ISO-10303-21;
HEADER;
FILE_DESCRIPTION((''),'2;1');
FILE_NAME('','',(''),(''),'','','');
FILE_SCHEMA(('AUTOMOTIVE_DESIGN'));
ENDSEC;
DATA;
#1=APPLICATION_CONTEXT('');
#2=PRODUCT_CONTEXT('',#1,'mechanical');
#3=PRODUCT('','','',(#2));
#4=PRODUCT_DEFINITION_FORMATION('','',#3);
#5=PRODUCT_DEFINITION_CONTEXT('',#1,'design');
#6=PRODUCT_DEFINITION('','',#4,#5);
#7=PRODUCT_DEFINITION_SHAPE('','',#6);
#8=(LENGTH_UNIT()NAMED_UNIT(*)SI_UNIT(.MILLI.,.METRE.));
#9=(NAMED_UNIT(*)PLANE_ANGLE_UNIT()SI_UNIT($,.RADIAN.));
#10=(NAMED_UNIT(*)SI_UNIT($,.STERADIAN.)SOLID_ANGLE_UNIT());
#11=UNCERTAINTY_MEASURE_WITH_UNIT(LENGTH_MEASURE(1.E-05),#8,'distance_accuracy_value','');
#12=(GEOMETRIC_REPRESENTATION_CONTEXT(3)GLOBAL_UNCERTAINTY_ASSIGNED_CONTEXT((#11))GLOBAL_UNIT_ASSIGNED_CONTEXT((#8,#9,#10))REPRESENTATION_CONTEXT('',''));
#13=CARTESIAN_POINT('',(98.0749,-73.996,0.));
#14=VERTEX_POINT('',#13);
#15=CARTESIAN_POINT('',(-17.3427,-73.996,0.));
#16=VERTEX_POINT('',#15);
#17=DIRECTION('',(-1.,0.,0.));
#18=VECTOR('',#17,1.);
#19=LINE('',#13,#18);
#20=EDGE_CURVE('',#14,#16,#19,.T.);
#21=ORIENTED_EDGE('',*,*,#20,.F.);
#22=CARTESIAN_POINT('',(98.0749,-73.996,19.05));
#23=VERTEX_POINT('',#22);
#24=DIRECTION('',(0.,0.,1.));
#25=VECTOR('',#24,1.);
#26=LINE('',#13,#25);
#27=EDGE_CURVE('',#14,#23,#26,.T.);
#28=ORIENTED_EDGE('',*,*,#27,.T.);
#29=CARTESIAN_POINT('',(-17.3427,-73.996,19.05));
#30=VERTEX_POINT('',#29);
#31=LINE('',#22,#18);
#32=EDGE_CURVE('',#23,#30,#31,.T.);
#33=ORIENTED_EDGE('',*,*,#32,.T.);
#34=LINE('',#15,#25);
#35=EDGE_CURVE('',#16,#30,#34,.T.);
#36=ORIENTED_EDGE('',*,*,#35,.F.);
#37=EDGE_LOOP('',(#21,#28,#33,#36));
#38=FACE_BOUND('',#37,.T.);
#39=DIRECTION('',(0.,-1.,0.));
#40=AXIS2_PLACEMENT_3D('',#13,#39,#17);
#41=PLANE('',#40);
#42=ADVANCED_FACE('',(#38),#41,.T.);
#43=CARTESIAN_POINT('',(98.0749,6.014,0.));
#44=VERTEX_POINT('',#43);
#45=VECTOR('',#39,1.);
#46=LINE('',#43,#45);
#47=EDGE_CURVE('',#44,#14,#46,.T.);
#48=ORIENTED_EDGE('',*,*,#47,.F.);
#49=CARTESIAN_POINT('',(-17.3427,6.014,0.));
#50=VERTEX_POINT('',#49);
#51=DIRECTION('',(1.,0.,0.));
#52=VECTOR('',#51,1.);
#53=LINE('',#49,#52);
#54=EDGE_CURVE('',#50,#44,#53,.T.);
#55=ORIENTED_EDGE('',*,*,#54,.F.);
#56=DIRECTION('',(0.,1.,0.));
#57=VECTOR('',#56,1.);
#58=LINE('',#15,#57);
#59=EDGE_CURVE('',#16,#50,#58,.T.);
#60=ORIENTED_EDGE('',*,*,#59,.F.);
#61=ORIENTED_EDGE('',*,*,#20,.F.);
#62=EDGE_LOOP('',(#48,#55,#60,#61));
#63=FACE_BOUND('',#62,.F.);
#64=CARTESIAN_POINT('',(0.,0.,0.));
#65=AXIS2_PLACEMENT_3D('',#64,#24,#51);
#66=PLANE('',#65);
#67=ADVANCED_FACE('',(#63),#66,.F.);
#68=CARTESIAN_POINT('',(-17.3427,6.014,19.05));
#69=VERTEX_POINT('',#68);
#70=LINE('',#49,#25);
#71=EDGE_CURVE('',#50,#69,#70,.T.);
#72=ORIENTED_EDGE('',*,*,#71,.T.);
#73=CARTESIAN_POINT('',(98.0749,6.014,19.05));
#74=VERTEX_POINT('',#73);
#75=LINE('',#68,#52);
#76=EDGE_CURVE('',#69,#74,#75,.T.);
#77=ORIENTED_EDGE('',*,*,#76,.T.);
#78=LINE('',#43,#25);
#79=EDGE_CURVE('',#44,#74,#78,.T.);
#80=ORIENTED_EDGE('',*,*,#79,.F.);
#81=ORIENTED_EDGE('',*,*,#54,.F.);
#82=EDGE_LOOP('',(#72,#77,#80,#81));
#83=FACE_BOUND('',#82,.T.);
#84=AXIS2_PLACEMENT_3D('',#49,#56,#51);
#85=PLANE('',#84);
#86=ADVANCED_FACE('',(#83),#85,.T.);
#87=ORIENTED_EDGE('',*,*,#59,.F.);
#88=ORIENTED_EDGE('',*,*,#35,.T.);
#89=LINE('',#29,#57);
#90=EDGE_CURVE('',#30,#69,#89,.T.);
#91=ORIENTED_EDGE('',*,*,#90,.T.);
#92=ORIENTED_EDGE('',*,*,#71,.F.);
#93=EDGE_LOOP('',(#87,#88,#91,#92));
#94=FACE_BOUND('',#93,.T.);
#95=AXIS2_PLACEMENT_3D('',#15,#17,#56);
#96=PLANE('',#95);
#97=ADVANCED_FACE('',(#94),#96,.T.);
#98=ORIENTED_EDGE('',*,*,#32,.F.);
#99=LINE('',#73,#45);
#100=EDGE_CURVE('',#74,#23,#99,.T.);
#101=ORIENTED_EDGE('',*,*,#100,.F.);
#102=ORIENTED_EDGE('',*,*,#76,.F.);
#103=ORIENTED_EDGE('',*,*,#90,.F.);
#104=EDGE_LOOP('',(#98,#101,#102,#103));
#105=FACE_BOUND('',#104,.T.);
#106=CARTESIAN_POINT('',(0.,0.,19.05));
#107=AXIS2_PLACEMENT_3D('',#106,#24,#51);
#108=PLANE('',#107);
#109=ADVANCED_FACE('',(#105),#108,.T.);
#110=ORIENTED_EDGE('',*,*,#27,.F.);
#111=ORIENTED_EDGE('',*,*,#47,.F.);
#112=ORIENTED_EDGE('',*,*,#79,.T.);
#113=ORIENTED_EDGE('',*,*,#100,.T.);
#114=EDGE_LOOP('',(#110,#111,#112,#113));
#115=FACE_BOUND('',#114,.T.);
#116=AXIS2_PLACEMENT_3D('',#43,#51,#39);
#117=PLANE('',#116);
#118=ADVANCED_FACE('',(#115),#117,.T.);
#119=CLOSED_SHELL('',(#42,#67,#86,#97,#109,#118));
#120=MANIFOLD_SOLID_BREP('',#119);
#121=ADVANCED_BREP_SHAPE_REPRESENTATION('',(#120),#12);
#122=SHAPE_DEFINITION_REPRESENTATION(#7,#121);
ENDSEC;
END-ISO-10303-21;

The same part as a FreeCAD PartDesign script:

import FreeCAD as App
import Part
import Sketcher
Q = App.Units.Quantity


def add_polygon(sketch, points):
    """Adds a closed chain of lines whose ends are joined by coincident constraints."""
    first, n = sketch.GeometryCount, len(points)
    for a, b in zip(points, points[1:] + points[:1]):
        sketch.addGeometry(Part.LineSegment(App.Vector(*a, 0), App.Vector(*b, 0)), False)
    for i in range(n):
        sketch.addConstraint(Sketcher.Constraint("Coincident", first + i, 2, first + (i + 1) % n, 1))

doc = App.newDocument("Part")
params = doc.addObject("Spreadsheet::Sheet", "Params")
for row, (alias, value) in enumerate([
    ("sketch1_height", "3.15 in"),
    ("sketch1_width", "4.544 in"),
    ("pad1_length", "0.75 in"),
], start=1):
    params.set(f"A{row}", alias)
    params.set(f"B{row}", "=" + value)
    params.setAlias(f"B{row}", alias)

body = doc.addObject("PartDesign::Body", "Body")

# Sketch on XY plane
sketch1 = doc.addObject("Sketcher::SketchObject", "Sketch")
body.addObject(sketch1)
sketch1.AttachmentSupport = (doc.XY_Plane, [""])
sketch1.MapMode = "FlatFace"
add_polygon(sketch1, [(98, 6), (-17, 6), (-17, -74), (98, -74)])  # lines 0-3
sketch1.addConstraint([
    Sketcher.Constraint("Horizontal", 0),
    Sketcher.Constraint("Vertical", 1),
    Sketcher.Constraint("Horizontal", 2),
    Sketcher.Constraint("Vertical", 3),
    Sketcher.Constraint("DistanceY", 1, 2, 1, 1, Q("3.15 in")),
    Sketcher.Constraint("DistanceX", 0, 2, 0, 1, Q("4.544 in")),
    Sketcher.Constraint("DistanceX", 0, 2, -1, 1, Q("17.3427 mm")),
    Sketcher.Constraint("DistanceY", -1, 1, 0, 2, Q("6.014 mm")),
])
sketch1.setExpression("Constraints[8]", "Params.sketch1_height")
sketch1.setExpression("Constraints[9]", "Params.sketch1_width")
pad1 = doc.addObject("PartDesign::Pad", "Pad")
body.addObject(pad1)
pad1.Profile = sketch1
pad1.setExpression("Length", "Params.pad1_length")

doc.recompute()
